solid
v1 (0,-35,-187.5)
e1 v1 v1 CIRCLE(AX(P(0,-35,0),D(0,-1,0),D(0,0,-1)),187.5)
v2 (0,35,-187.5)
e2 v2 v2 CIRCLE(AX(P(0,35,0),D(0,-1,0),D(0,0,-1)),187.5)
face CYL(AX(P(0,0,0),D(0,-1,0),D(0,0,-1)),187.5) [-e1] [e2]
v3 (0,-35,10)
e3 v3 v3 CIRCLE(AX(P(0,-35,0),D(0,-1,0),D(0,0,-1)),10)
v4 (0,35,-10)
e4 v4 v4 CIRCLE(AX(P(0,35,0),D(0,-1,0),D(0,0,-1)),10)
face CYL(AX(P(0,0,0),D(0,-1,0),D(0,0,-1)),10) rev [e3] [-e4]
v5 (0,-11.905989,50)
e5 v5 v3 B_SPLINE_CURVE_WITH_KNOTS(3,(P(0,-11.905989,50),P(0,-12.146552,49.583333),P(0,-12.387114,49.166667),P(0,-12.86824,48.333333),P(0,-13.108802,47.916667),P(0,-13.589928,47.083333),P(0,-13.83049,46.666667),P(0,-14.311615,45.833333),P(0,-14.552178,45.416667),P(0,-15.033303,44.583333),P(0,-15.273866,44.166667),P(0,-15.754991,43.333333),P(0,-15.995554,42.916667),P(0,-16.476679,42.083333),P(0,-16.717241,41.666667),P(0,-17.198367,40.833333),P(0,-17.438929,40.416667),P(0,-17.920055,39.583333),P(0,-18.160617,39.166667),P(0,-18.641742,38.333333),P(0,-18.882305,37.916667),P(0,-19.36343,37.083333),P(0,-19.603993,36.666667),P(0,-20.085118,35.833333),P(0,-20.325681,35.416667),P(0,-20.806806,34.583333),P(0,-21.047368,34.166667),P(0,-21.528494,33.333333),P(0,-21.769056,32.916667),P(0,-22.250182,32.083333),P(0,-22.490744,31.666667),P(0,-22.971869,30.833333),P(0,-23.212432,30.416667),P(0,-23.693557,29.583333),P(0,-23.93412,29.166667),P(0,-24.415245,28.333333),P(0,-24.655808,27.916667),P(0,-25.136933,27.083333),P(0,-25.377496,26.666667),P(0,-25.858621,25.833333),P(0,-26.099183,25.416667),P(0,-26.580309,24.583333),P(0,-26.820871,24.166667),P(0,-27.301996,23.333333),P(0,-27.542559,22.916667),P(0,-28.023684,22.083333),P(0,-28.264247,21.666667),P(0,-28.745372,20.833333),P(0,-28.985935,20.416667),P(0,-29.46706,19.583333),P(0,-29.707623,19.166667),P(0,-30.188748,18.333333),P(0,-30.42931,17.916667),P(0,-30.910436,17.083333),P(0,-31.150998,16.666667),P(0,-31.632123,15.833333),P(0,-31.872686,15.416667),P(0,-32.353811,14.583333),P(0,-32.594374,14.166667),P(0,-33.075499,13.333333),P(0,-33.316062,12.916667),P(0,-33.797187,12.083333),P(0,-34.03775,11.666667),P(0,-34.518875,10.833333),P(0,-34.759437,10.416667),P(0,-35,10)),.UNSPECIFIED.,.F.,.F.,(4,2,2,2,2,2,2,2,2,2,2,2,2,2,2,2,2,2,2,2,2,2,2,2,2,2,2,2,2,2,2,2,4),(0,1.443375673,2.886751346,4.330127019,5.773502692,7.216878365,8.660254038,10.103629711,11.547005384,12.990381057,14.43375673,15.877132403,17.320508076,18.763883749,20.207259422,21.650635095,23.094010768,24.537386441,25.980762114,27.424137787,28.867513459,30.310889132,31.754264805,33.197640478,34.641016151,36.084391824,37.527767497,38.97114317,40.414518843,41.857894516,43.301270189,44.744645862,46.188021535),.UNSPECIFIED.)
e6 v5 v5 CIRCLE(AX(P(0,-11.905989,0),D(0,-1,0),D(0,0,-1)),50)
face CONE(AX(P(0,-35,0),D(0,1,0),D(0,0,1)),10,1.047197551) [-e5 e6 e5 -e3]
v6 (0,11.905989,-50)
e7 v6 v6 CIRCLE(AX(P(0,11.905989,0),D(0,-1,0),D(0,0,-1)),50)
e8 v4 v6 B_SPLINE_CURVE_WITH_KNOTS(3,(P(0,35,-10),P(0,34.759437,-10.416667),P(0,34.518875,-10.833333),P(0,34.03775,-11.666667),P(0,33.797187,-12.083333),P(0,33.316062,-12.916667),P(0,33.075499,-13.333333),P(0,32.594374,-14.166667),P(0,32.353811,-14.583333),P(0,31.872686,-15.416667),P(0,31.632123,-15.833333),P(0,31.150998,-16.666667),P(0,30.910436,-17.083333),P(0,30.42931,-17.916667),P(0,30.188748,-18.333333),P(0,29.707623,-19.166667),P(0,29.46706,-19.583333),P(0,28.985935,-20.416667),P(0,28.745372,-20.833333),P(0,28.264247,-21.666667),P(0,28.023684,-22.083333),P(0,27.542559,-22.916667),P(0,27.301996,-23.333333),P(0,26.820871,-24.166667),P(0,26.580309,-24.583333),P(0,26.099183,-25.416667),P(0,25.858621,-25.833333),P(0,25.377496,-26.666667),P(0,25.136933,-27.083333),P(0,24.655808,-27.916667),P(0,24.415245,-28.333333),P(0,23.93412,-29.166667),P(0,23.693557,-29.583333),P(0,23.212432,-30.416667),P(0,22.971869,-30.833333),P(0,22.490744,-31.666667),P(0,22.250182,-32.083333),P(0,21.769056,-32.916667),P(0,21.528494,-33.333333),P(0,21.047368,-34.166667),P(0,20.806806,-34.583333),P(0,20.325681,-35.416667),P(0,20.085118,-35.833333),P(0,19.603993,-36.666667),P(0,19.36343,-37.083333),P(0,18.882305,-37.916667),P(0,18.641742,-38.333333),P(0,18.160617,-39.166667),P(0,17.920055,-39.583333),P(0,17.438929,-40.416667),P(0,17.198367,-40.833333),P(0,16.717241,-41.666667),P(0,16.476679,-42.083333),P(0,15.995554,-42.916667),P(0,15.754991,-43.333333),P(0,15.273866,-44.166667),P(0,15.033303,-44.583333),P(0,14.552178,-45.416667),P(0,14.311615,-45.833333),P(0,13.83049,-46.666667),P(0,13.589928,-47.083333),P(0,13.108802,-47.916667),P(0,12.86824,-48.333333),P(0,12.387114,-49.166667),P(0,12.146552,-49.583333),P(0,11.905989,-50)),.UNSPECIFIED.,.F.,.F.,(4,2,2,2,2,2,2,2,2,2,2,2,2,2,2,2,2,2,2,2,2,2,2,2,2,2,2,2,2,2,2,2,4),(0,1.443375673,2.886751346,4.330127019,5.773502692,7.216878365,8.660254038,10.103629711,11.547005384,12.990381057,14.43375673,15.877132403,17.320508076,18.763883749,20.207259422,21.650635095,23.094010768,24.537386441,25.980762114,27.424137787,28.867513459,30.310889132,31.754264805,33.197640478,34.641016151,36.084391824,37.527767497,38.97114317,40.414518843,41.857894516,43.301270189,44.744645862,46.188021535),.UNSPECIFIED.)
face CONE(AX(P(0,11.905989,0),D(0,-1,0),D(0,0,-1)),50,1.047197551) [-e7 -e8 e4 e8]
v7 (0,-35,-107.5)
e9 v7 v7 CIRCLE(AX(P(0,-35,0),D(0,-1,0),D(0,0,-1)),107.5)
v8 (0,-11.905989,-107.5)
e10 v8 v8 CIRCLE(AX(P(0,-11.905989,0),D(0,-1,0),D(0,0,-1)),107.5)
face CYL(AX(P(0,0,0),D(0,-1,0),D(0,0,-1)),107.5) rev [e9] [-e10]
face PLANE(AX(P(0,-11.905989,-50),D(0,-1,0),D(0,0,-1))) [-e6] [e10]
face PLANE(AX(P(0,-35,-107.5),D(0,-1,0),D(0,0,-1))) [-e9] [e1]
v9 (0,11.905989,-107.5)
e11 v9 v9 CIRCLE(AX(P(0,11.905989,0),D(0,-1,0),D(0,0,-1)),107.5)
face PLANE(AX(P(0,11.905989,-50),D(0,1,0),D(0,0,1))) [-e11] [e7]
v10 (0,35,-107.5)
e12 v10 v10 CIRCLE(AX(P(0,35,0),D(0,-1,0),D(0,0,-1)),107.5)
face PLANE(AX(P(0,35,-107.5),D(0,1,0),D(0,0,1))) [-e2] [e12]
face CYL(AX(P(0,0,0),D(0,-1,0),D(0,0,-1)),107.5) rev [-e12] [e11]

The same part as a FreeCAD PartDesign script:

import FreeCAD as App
import Part
import Sketcher

V = App.Vector
Q = App.Units.Quantity

doc = App.newDocument("Part")
params = doc.addObject("Spreadsheet::Sheet", "Params")
for row, (alias, value) in enumerate([
    ("sketch1_width", "70 mm"),
    ("sketch1_height", "80 mm"),
    ("sketch1_height2", "57.5 mm"),
    ("revolution_angle", "360 deg"),
], start=1):
    params.set(f"A{row}", alias)
    params.set(f"B{row}", "=" + value)
    params.setAlias(f"B{row}", alias)

body = doc.addObject("PartDesign::Body", "Body")

sketch1 = doc.addObject("Sketcher::SketchObject", "Sketch")
body.addObject(sketch1)
sketch1.AttachmentSupport = (doc.YZ_Plane, [""])
sketch1.MapMode = "FlatFace"
sketch1.addGeometry([
    Part.LineSegment(V(35, -10, 0), V(-35, -10, 0)),
    Part.LineSegment(V(-35, -10, 0), V(-12, -50, 0)),
    Part.LineSegment(V(-12, -50, 0), V(-12, -108, 0)),
    Part.LineSegment(V(-12, -108, 0), V(-35, -108, 0)),
    Part.LineSegment(V(-35, -108, 0), V(-35, -188, 0)),
    Part.LineSegment(V(-35, -188, 0), V(35, -188, 0)),
    Part.LineSegment(V(35, -188, 0), V(35, -108, 0)),
    Part.LineSegment(V(35, -108, 0), V(12, -108, 0)),
    Part.LineSegment(V(12, -108, 0), V(12, -50, 0)),
    Part.LineSegment(V(12, -50, 0), V(35, -10, 0)),
], False)
sketch1.addConstraint([
    Sketcher.Constraint("Coincident", 0, 2, 1, 1),
    Sketcher.Constraint("Coincident", 1, 2, 2, 1),
    Sketcher.Constraint("Coincident", 2, 2, 3, 1),
    Sketcher.Constraint("Coincident", 3, 2, 4, 1),
    Sketcher.Constraint("Coincident", 4, 2, 5, 1),
    Sketcher.Constraint("Coincident", 5, 2, 6, 1),
    Sketcher.Constraint("Coincident", 6, 2, 7, 1),
    Sketcher.Constraint("Coincident", 7, 2, 8, 1),
    Sketcher.Constraint("Coincident", 8, 2, 9, 1),
    Sketcher.Constraint("Coincident", 9, 2, 0, 1),
    Sketcher.Constraint("Horizontal", 0),
    Sketcher.Constraint("Vertical", 2),
    Sketcher.Constraint("Horizontal", 3),
    Sketcher.Constraint("Vertical", 4),
    Sketcher.Constraint("Horizontal", 5),
    Sketcher.Constraint("Vertical", 6),
    Sketcher.Constraint("Horizontal", 7),
    Sketcher.Constraint("Vertical", 8),
    Sketcher.Constraint("Symmetric", 3, 2, 6, 2, -2),
    Sketcher.Constraint("Symmetric", 1, 2, 8, 2, -2),
    Sketcher.Constraint("Vertical", 0, 2, 3, 2),
    Sketcher.Constraint("Vertical", 6, 2, 9, 2),
    Sketcher.Constraint("DistanceX", 0, 2, 0, 1, Q("70 mm")),
    Sketcher.Constraint("DistanceY", 4, 2, 4, 1, Q("80 mm")),
    Sketcher.Constraint("Angle", 1, Q("-60 deg")),
    Sketcher.Constraint("DistanceY", 2, 2, 2, 1, Q("57.5 mm")),
    Sketcher.Constraint("DistanceY", 0, 2, -1, 1, Q("10 mm")),
    Sketcher.Constraint("DistanceY", 1, 2, -1, 1, Q("50 mm")),
])
sketch1.setExpression("Constraints[22]", "Params.sketch1_width")
sketch1.setExpression("Constraints[23]", "Params.sketch1_height")
sketch1.setExpression("Constraints[25]", "Params.sketch1_height2")
revolution = doc.addObject("PartDesign::Revolution", "Revolution")
body.addObject(revolution)
revolution.Profile = sketch1
revolution.ReferenceAxis = (sketch1, ["H_Axis"])
revolution.setExpression("Angle", "Params.revolution_angle")

doc.recompute()
